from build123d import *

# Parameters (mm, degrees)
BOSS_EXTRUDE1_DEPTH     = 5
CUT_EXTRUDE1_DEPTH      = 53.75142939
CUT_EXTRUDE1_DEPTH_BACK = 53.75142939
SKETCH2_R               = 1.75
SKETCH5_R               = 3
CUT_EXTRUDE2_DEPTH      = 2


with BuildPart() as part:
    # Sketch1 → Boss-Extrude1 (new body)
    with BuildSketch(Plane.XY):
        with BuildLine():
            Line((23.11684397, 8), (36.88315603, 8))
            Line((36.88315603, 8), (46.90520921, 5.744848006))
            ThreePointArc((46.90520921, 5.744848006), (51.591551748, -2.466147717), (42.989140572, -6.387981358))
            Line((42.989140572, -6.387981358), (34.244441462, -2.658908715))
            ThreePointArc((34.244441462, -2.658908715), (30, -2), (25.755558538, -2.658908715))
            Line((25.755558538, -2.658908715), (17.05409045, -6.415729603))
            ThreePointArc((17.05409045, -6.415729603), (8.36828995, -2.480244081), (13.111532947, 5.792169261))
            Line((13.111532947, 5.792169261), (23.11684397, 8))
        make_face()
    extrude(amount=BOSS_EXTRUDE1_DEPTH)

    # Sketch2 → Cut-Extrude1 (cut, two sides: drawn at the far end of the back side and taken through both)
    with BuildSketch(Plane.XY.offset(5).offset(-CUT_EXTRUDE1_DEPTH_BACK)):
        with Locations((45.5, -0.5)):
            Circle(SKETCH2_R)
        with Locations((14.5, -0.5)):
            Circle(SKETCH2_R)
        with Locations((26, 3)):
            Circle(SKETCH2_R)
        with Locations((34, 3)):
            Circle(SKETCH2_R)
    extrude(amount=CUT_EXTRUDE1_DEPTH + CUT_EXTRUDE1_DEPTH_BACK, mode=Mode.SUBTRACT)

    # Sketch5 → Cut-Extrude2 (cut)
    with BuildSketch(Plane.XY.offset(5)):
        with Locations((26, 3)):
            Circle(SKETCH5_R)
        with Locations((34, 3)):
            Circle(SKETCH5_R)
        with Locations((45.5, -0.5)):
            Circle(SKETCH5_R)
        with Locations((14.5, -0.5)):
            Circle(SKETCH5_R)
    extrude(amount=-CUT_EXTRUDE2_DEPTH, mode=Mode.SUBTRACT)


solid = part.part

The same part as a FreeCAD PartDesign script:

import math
import FreeCAD as App
import Part
import Sketcher

V = App.Vector
Q = App.Units.Quantity

doc = App.newDocument("Part")
body = doc.addObject("PartDesign::Body", "Body")

sketch1 = body.newObject("Sketcher::SketchObject", "Sketch")
sketch1.AttachmentSupport = (doc.getObject("XY_Plane"), [""])
sketch1.MapMode = "FlatFace"
sketch1.addGeometry(Part.LineSegment(V(37, 8, 0), V(23, 8, 0)), False)
sketch1.addGeometry(Part.LineSegment(V(23, 8, 0), V(13, 6, 0)), False)
sketch1.addGeometry(Part.ArcOfCircle(Part.Circle(V(14, 0, 0), V(0, 0, 1), 6), math.radians(102), math.radians(293)), False)
sketch1.addGeometry(Part.LineSegment(V(17, -6, 0), V(26, -3, 0)), False)
sketch1.addGeometry(Part.ArcOfCircle(Part.Circle(V(30, -16, 0), V(0, 0, 1), 14), math.radians(72), math.radians(108)), False)
sketch1.addGeometry(Part.LineSegment(V(34, -3, 0), V(43, -6, 0)), False)
sketch1.addGeometry(Part.ArcOfCircle(Part.Circle(V(46, 0, 0), V(0, 0, 1), 6), math.radians(-113), math.radians(77)), False)
sketch1.addGeometry(Part.LineSegment(V(47, 6, 0), V(37, 8, 0)), False)
sketch1.addConstraint(Sketcher.Constraint("Coincident", 0, 2, 1, 1))
sketch1.addConstraint(Sketcher.Constraint("Tangent", 1, 2, 2, 1))
sketch1.addConstraint(Sketcher.Constraint("Tangent", 2, 2, 3, 1))
sketch1.addConstraint(Sketcher.Constraint("Coincident", 3, 2, 4, 2))
sketch1.addConstraint(Sketcher.Constraint("Coincident", 4, 1, 5, 1))
sketch1.addConstraint(Sketcher.Constraint("Tangent", 5, 2, 6, 1))
sketch1.addConstraint(Sketcher.Constraint("Tangent", 6, 2, 7, 1))
sketch1.addConstraint(Sketcher.Constraint("Coincident", 7, 2, 0, 1))
sketch1.addConstraint(Sketcher.Constraint("Horizontal", 0))
sketch1.addConstraint(Sketcher.Constraint("Horizontal", 2, 3, 6, 3))
sketch1.addConstraint(Sketcher.Constraint("Horizontal", 3, 2, 4, 1))
sketch1.addConstraint(Sketcher.Constraint("Radius", 4, Q("14 mm")))
sketch1.addConstraint(Sketcher.Constraint("DistanceX", -1, 1, 4, 3, Q("30 mm")))
sketch1.addConstraint(Sketcher.Constraint("DistanceY", 4, 3, -1, 1, Q("16 mm")))
sketch1.addConstraint(Sketcher.Constraint("DistanceY", -1, 1, 0, 2, Q("8 mm")))
sketch1.addConstraint(Sketcher.Constraint("DistanceX", 2, 3, 6, 3, Q("31 mm")))
sketch1.addConstraint(Sketcher.Constraint("DistanceX", -1, 1, 2, 3, Q("14.5 mm")))
sketch1.addConstraint(Sketcher.Constraint("DistanceY", 2, 3, -1, 1, Q("0.5 mm")))
sketch1.addConstraint(Sketcher.Constraint("Radius", 2, Q("6.443542 mm")))
sketch1.addConstraint(Sketcher.Constraint("Radius", 6, Q("6.400995 mm")))
sketch1.addConstraint(Sketcher.Constraint("DistanceY", 2, 2, 1, 2, Q("12.207899 mm")))
sketch1.addConstraint(Sketcher.Constraint("DistanceX", 4, 1, 5, 2, Q("8.744699 mm")))
sketch1.addConstraint(Sketcher.Constraint("DistanceX", 0, 2, 0, 1, Q("13.766312 mm")))
pad1 = body.newObject("PartDesign::Pad", "Pad")
pad1.Profile = sketch1
pad1.Length = 5

sketch2 = body.newObject("Sketcher::SketchObject", "Sketch001")
sketch2.AttachmentSupport = (doc.getObject("XY_Plane"), [""])
sketch2.MapMode = "FlatFace"
sketch2.AttachmentOffset = App.Placement(V(0, 0, 5), App.Rotation())
sketch2.addGeometry(Part.Circle(V(45.5, -0.5, 0), V(0, 0, 1), 1.8), False)
sketch2.addGeometry(Part.Circle(V(14.5, -0.5, 0), V(0, 0, 1), 1.8), False)
sketch2.addGeometry(Part.Circle(V(26, 3, 0), V(0, 0, 1), 1.8), False)
sketch2.addGeometry(Part.Circle(V(34, 3, 0), V(0, 0, 1), 1.8), False)
sketch2.addConstraint(Sketcher.Constraint("Equal", 0, 1))
sketch2.addConstraint(Sketcher.Constraint("Equal", 1, 2))
sketch2.addConstraint(Sketcher.Constraint("Equal", 2, 3))
sketch2.addConstraint(Sketcher.Constraint("Horizontal", 0, 3, 1, 3))
sketch2.addConstraint(Sketcher.Constraint("Horizontal", 2, 3, 3, 3))
sketch2.addConstraint(Sketcher.Constraint("Diameter", 0, Q("3.5 mm")))
sketch2.addConstraint(Sketcher.Constraint("DistanceX", -1, 1, 2, 3, Q("26 mm")))
sketch2.addConstraint(Sketcher.Constraint("DistanceY", -1, 1, 2, 3, Q("3 mm")))
sketch2.addConstraint(Sketcher.Constraint("DistanceX", -1, 1, 3, 3, Q("34 mm")))
sketch2.addConstraint(Sketcher.Constraint("DistanceX", 1, 3, 0, 3, Q("31 mm")))
sketch2.addConstraint(Sketcher.Constraint("DistanceX", -1, 1, 0, 3, Q("45.5 mm")))
sketch2.addConstraint(Sketcher.Constraint("DistanceY", 0, 3, -1, 1, Q("0.5 mm")))
pocket1 = body.newObject("PartDesign::Pocket", "Pocket")
pocket1.Profile = sketch2
pocket1.Type = "ThroughAll"
pocket1.Midplane = True

sketch3 = body.newObject("Sketcher::SketchObject", "Sketch002")
sketch3.AttachmentSupport = (doc.getObject("XY_Plane"), [""])
sketch3.MapMode = "FlatFace"
sketch3.AttachmentOffset = App.Placement(V(0, 0, 5), App.Rotation())
sketch3.addGeometry(Part.Circle(V(26, 3, 0), V(0, 0, 1), 3), False)
sketch3.addGeometry(Part.Circle(V(34, 3, 0), V(0, 0, 1), 3), False)
sketch3.addGeometry(Part.Circle(V(45.5, -0.5, 0), V(0, 0, 1), 3), False)
sketch3.addGeometry(Part.Circle(V(14.5, -0.5, 0), V(0, 0, 1), 3), False)
sketch3.addConstraint(Sketcher.Constraint("Equal", 0, 1))
sketch3.addConstraint(Sketcher.Constraint("Equal", 1, 2))
sketch3.addConstraint(Sketcher.Constraint("Equal", 2, 3))
sketch3.addConstraint(Sketcher.Constraint("Horizontal", 0, 3, 1, 3))
sketch3.addConstraint(Sketcher.Constraint("Horizontal", 2, 3, 3, 3))
sketch3.addConstraint(Sketcher.Constraint("Diameter", 0, Q("6 mm")))
sketch3.addConstraint(Sketcher.Constraint("DistanceX", -1, 1, 0, 3, Q("26 mm")))
sketch3.addConstraint(Sketcher.Constraint("DistanceY", -1, 1, 0, 3, Q("3 mm")))
sketch3.addConstraint(Sketcher.Constraint("DistanceX", -1, 1, 1, 3, Q("34 mm")))
sketch3.addConstraint(Sketcher.Constraint("DistanceX", 3, 3, 2, 3, Q("31 mm")))
sketch3.addConstraint(Sketcher.Constraint("DistanceX", -1, 1, 2, 3, Q("45.5 mm")))
sketch3.addConstraint(Sketcher.Constraint("DistanceY", 2, 3, -1, 1, Q("0.5 mm")))
pocket2 = body.newObject("PartDesign::Pocket", "Pocket001")
pocket2.Profile = sketch3
pocket2.Length = 2

doc.recompute()
